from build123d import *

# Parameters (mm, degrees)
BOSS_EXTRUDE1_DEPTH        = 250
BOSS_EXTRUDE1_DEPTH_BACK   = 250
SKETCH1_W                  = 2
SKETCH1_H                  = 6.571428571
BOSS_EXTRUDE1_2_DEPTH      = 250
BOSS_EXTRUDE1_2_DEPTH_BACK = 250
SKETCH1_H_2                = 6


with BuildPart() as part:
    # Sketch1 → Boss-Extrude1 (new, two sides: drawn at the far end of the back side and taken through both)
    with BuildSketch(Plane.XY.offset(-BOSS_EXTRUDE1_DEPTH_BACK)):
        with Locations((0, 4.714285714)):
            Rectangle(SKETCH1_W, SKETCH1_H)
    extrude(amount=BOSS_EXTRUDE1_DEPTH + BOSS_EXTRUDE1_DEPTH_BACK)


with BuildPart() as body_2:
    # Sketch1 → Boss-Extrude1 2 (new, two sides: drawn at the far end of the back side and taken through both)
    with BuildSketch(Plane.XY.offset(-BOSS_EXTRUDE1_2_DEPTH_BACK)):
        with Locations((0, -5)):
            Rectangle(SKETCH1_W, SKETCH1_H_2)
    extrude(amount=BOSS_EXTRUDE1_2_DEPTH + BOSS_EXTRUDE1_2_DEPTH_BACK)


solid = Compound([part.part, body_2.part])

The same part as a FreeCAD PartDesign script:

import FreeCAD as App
import Part
import Sketcher

doc = App.newDocument("Part")
body = doc.addObject("PartDesign::Body", "Body")

# Sketch on XY plane
sketch1 = body.newObject("Sketcher::SketchObject", "Sketch")
sketch1.AttachmentSupport = (doc.getObject("XY_Plane"), [""])
sketch1.MapMode = "FlatFace"
sketch1.addGeometry([
    Part.LineSegment(App.Vector(-1, 8, 0), App.Vector(-1, 1.4, 0)),
    Part.LineSegment(App.Vector(-1, 1.4, 0), App.Vector(1, 1.4, 0)),
    Part.LineSegment(App.Vector(1, 1.4, 0), App.Vector(1, 8, 0)),
    Part.LineSegment(App.Vector(1, 8, 0), App.Vector(-1, 8, 0)),
], False)
sketch1.addConstraint([
    Sketcher.Constraint("Coincident", 0, 2, 1, 1),
    Sketcher.Constraint("Coincident", 1, 2, 2, 1),
    Sketcher.Constraint("Coincident", 2, 2, 3, 1),
    Sketcher.Constraint("Coincident", 3, 2, 0, 1),
    Sketcher.Constraint("Vertical", 0),
    Sketcher.Constraint("Horizontal", 1),
    Sketcher.Constraint("Vertical", 2),
    Sketcher.Constraint("Horizontal", 3),
    Sketcher.Constraint("DistanceX", 1, 1, 1, 2, 2.0),
    Sketcher.Constraint("DistanceX", 0, 2, -1, 1, 1.0),
    Sketcher.Constraint("DistanceY", -1, 1, 2, 2, 8.0),
    Sketcher.Constraint("DistanceY", 0, 2, 0, 1, 6.571429),
])
pad1 = body.newObject("PartDesign::Pad", "Pad")
pad1.Profile = sketch1
pad1.Type = "TwoLengths"
pad1.Length = 250
pad1.Length2 = 250
body2 = doc.addObject("PartDesign::Body", "Body001")

# Sketch on XY plane
sketch2 = body2.newObject("Sketcher::SketchObject", "Sketch001")
sketch2.AttachmentSupport = (doc.getObject("XY_Plane001"), [""])
sketch2.MapMode = "FlatFace"
sketch2.addGeometry([
    Part.LineSegment(App.Vector(-1, -2, 0), App.Vector(-1, -8, 0)),
    Part.LineSegment(App.Vector(-1, -8, 0), App.Vector(1, -8, 0)),
    Part.LineSegment(App.Vector(1, -8, 0), App.Vector(1, -2, 0)),
    Part.LineSegment(App.Vector(1, -2, 0), App.Vector(-1, -2, 0)),
], False)
sketch2.addConstraint([
    Sketcher.Constraint("Coincident", 0, 2, 1, 1),
    Sketcher.Constraint("Coincident", 1, 2, 2, 1),
    Sketcher.Constraint("Coincident", 2, 2, 3, 1),
    Sketcher.Constraint("Coincident", 3, 2, 0, 1),
    Sketcher.Constraint("Vertical", 0),
    Sketcher.Constraint("Horizontal", 1),
    Sketcher.Constraint("Vertical", 2),
    Sketcher.Constraint("Horizontal", 3),
    Sketcher.Constraint("DistanceX", 1, 1, 1, 2, 2.0),
    Sketcher.Constraint("DistanceY", 0, 2, 0, 1, 6.0),
    Sketcher.Constraint("DistanceX", 0, 2, -1, 1, 1.0),
    Sketcher.Constraint("DistanceY", 0, 2, -1, 1, 8.0),
])
pad2 = body2.newObject("PartDesign::Pad", "Pad001")
pad2.Profile = sketch2
pad2.Type = "TwoLengths"
pad2.Length = 250
pad2.Length2 = 250

doc.recompute()
